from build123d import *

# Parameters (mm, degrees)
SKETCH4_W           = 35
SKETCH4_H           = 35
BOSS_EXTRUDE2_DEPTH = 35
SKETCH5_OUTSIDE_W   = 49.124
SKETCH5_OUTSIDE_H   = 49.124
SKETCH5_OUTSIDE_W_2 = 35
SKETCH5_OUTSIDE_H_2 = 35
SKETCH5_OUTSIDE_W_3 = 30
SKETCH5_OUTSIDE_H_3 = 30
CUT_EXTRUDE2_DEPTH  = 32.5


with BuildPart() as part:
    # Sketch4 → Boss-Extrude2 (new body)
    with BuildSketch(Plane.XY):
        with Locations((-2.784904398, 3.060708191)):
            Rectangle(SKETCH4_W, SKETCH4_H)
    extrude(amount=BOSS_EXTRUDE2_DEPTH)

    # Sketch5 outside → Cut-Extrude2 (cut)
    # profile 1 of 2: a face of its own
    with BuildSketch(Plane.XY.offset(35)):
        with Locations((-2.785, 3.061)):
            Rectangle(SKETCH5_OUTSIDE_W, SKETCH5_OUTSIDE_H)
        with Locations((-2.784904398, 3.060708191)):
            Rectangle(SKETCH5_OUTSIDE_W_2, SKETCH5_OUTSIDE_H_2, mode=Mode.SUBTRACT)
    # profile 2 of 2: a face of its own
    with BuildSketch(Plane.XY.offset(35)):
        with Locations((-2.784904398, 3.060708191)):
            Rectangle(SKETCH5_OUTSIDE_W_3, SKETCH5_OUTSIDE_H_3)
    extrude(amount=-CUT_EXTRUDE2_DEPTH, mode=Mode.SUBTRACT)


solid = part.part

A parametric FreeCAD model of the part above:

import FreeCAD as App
import Part
import Sketcher
from FreeCAD import Vector
Q = App.Units.Quantity


def add_polygon(sketch, points):
    """Adds a closed chain of lines whose ends are joined by coincident constraints."""
    first, n = sketch.GeometryCount, len(points)
    for a, b in zip(points, points[1:] + points[:1]):
        sketch.addGeometry(Part.LineSegment(App.Vector(*a, 0), App.Vector(*b, 0)), False)
    for i in range(n):
        sketch.addConstraint(Sketcher.Constraint("Coincident", first + i, 2, first + (i + 1) % n, 1))

doc = App.newDocument("Part")
body = doc.addObject("PartDesign::Body", "Body")

sketch1 = body.newObject("Sketcher::SketchObject", "Sketch")
sketch1.AttachmentSupport = (doc.getObject("XY_Plane"), [""])
sketch1.MapMode = "FlatFace"
add_polygon(sketch1, [(-20.284904, 20.560708), (-20.284904, -14.439292), (14.715096, -14.439292), (14.715096, 20.560708)])
sketch1.addConstraint(Sketcher.Constraint("Vertical", 0))
sketch1.addConstraint(Sketcher.Constraint("Horizontal", 1))
sketch1.addConstraint(Sketcher.Constraint("Vertical", 2))
sketch1.addConstraint(Sketcher.Constraint("Horizontal", 3))
sketch1.addConstraint(Sketcher.Constraint("Equal", 3, 0))
sketch1.addConstraint(Sketcher.Constraint("DistanceX", 1, 1, 1, 2, Q("35 mm")))
sketch1.addConstraint(Sketcher.Constraint("DistanceY", 0, 2, -1, 1, Q("14.439292 mm")))
sketch1.addConstraint(Sketcher.Constraint("DistanceX", 0, 2, -1, 1, Q("20.284904 mm")))
pad1 = body.newObject("PartDesign::Pad", "Pad")
pad1.Profile = sketch1
pad1.Length = 35

sketch2 = body.newObject("Sketcher::SketchObject", "Sketch001")
sketch2.AttachmentSupport = (doc.getObject("XY_Plane"), [""])
sketch2.MapMode = "FlatFace"
sketch2.AttachmentOffset = App.Placement(Vector(0, 0, 35), App.Rotation())
add_polygon(sketch2, [(-27.347, 27.623), (-27.347, -21.501), (21.777, -21.501), (21.777, 27.623)])
add_polygon(sketch2, [(14.715096, -14.439292), (-20.284904, -14.439292), (-20.284904, 20.560708), (14.715096, 20.560708)])
add_polygon(sketch2, [(-17.784904, 18.060708), (-17.784904, -11.939292), (12.215096, -11.939292), (12.215096, 18.060708)])
sketch2.addConstraint(Sketcher.Constraint("Vertical", 0))
sketch2.addConstraint(Sketcher.Constraint("Horizontal", 1))
sketch2.addConstraint(Sketcher.Constraint("Vertical", 2))
sketch2.addConstraint(Sketcher.Constraint("Horizontal", 3))
sketch2.addConstraint(Sketcher.Constraint("Horizontal", 4))
sketch2.addConstraint(Sketcher.Constraint("Vertical", 5))
sketch2.addConstraint(Sketcher.Constraint("Horizontal", 6))
sketch2.addConstraint(Sketcher.Constraint("Vertical", 7))
sketch2.addConstraint(Sketcher.Constraint("Vertical", 8))
sketch2.addConstraint(Sketcher.Constraint("Horizontal", 9))
sketch2.addConstraint(Sketcher.Constraint("Vertical", 10))
sketch2.addConstraint(Sketcher.Constraint("Horizontal", 11))
sketch2.addConstraint(Sketcher.Constraint("Equal", 3, 0))
sketch2.addConstraint(Sketcher.Constraint("Equal", 6, 5))
sketch2.addConstraint(Sketcher.Constraint("Equal", 11, 8))
sketch2.addConstraint(Sketcher.Constraint("DistanceX", 4, 2, 4, 1, Q("35 mm")))
sketch2.addConstraint(Sketcher.Constraint("DistanceX", 9, 1, 9, 2, Q("30 mm")))
sketch2.addConstraint(Sketcher.Constraint("DistanceX", 4, 2, 8, 2, Q("2.5 mm")))
sketch2.addConstraint(Sketcher.Constraint("DistanceY", 4, 2, 8, 2, Q("2.5 mm")))
sketch2.addConstraint(Sketcher.Constraint("DistanceX", 1, 1, 1, 2, Q("49.124 mm")))
sketch2.addConstraint(Sketcher.Constraint("DistanceX", 0, 2, -1, 1, Q("27.347 mm")))
sketch2.addConstraint(Sketcher.Constraint("DistanceY", 0, 2, -1, 1, Q("21.501 mm")))
sketch2.addConstraint(Sketcher.Constraint("DistanceY", 4, 2, -1, 1, Q("14.439292 mm")))
sketch2.addConstraint(Sketcher.Constraint("DistanceX", 4, 2, -1, 1, Q("20.284904 mm")))
pocket1 = body.newObject("PartDesign::Pocket", "Pocket")
pocket1.Profile = sketch2
pocket1.Length = 32.5

doc.recompute()
